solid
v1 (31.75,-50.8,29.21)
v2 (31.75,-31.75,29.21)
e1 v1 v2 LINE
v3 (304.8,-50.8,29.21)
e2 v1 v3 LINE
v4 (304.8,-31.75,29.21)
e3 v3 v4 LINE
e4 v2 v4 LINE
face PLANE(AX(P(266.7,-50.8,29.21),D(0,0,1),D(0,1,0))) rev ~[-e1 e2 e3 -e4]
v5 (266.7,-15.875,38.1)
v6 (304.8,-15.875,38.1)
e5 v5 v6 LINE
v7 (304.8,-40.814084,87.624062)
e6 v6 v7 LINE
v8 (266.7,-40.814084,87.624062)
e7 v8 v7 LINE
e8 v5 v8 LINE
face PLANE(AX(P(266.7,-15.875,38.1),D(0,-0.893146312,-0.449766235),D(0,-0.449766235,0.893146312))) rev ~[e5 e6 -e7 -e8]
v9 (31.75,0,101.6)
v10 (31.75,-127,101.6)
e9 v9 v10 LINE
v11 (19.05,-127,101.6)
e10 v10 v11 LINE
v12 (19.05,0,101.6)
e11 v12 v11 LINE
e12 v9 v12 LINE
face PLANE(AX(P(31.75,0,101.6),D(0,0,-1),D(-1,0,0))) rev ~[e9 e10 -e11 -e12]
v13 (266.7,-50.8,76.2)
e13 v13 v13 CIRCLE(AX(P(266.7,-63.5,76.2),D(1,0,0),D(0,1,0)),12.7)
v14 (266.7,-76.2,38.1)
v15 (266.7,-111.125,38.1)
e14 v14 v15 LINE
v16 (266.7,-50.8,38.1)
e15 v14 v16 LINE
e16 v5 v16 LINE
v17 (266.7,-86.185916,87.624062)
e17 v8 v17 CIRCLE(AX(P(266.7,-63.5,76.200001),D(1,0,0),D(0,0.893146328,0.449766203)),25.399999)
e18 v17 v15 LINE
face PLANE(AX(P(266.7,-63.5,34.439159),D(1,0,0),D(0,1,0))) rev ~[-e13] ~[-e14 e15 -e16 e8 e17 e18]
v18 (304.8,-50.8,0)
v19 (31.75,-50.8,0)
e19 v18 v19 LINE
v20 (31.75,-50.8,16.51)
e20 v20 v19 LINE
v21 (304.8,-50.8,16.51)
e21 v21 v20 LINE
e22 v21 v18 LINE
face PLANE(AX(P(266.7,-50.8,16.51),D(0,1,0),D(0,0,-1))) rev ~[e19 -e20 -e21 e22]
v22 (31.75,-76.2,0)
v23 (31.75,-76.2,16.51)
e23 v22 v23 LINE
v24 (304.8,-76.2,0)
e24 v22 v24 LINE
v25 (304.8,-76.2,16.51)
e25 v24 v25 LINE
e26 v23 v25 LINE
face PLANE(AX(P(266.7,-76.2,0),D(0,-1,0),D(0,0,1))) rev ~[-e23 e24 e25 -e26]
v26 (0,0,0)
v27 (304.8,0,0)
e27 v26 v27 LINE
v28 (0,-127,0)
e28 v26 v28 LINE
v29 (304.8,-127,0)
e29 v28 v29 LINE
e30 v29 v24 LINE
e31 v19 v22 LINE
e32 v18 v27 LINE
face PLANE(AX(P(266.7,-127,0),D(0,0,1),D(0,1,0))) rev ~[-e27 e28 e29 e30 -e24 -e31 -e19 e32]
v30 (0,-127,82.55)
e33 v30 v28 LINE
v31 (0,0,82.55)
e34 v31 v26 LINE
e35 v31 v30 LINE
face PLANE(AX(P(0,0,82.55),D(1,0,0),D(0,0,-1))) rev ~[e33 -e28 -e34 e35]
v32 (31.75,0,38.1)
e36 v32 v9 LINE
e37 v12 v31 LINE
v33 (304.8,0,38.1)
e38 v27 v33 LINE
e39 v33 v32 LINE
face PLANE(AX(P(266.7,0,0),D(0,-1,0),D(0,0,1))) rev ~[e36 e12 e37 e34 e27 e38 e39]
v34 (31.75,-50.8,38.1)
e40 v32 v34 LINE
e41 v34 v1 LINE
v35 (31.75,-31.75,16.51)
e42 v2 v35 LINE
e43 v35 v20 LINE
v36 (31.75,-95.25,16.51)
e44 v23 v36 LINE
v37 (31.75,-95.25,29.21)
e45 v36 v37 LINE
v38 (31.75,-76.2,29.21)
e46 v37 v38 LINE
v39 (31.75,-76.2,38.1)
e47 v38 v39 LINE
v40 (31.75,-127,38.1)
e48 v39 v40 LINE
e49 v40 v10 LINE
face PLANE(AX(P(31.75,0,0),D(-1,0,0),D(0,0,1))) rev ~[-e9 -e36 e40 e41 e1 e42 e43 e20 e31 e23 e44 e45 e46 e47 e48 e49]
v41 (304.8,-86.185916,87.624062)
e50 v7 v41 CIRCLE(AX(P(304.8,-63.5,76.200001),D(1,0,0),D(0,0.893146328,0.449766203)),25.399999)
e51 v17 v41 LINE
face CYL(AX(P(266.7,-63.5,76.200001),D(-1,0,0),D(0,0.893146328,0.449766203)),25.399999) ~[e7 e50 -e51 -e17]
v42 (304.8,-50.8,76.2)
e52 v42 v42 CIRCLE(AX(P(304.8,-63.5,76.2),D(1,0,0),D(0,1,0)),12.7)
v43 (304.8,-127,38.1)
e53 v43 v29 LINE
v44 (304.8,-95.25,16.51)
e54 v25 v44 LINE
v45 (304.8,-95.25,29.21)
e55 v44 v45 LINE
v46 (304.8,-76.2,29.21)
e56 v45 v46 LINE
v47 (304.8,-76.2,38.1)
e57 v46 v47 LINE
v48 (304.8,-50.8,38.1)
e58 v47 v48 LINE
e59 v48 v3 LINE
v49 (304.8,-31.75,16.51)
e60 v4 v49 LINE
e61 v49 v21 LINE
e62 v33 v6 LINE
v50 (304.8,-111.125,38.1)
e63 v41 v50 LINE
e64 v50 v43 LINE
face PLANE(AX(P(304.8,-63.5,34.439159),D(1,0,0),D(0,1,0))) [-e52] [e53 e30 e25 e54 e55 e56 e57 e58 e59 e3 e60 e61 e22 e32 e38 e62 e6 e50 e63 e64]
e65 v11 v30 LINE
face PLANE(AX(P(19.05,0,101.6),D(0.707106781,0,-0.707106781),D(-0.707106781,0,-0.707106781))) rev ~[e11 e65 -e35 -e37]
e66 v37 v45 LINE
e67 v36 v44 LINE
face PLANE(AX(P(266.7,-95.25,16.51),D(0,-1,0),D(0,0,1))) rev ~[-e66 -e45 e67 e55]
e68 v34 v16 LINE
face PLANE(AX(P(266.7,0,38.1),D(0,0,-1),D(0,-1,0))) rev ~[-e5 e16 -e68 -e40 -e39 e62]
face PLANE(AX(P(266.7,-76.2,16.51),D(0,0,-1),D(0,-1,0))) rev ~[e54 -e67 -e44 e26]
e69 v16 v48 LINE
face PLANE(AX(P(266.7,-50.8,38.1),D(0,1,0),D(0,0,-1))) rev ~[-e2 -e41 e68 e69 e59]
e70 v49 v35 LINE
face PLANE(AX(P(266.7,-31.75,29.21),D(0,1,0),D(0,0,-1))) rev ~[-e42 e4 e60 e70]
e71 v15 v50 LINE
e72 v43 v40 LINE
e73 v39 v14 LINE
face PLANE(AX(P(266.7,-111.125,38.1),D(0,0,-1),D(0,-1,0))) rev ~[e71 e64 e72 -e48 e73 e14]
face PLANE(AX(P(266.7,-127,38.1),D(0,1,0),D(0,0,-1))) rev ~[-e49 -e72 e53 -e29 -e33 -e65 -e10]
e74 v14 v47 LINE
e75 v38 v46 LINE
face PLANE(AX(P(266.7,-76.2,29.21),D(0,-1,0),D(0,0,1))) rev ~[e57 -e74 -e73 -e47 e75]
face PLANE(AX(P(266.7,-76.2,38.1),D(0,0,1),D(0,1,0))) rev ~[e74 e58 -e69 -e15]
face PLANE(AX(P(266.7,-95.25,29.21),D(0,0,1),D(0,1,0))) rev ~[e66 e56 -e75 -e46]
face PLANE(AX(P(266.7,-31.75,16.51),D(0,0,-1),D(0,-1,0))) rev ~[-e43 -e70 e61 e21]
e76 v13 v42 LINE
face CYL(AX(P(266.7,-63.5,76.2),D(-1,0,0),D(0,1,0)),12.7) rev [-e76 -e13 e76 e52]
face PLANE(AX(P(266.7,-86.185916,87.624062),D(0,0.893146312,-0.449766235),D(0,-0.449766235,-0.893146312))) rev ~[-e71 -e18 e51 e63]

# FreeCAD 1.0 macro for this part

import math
import FreeCAD as App
import Part
import Sketcher
from FreeCAD import Vector
Q = App.Units.Quantity

doc = App.newDocument("Part")
body = doc.addObject("PartDesign::Body", "Body")

sketch1 = body.newObject("Sketcher::SketchObject", "Sketch")
sketch1.AttachmentSupport = (doc.getObject("XZ_Plane"), [""])
sketch1.MapMode = "FlatFace"
sketch1.addGeometry([
    Part.LineSegment(Vector(0, 83, 0), Vector(0, 0, 0)),
    Part.LineSegment(Vector(0, 0, 0), Vector(32, 0, 0)),
    Part.LineSegment(Vector(32, 0, 0), Vector(32, 102, 0)),
    Part.LineSegment(Vector(32, 102, 0), Vector(19, 102, 0)),
    Part.LineSegment(Vector(19, 102, 0), Vector(0, 83, 0)),
], False)
sketch1.addConstraint([
    Sketcher.Constraint("Coincident", 0, 2, 1, 1),
    Sketcher.Constraint("Coincident", 1, 2, 2, 1),
    Sketcher.Constraint("Coincident", 2, 2, 3, 1),
    Sketcher.Constraint("Coincident", 3, 2, 4, 1),
    Sketcher.Constraint("Coincident", 4, 2, 0, 1),
    Sketcher.Constraint("Vertical", 0),
    Sketcher.Constraint("Horizontal", 1),
    Sketcher.Constraint("Vertical", 2),
    Sketcher.Constraint("Horizontal", 3),
    Sketcher.Constraint("Coincident", 0, 2, -1, 1),
    Sketcher.Constraint("DistanceY", 2, 1, 2, 2, Q("4 in")),
    Sketcher.Constraint("DistanceX", 3, 2, 3, 1, Q("0.5 in")),
    Sketcher.Constraint("Angle", 4, Q("-135 deg")),
    Sketcher.Constraint("DistanceX", 1, 1, 1, 2, Q("1.25 in")),
])
pad1 = body.newObject("PartDesign::Pad", "Pad")
pad1.Profile = sketch1
pad1.Length = Q("5 in")

sketch2 = body.newObject("Sketcher::SketchObject", "Sketch001")
sketch2.AttachmentSupport = (doc.getObject("YZ_Plane"), [""])
sketch2.MapMode = "FlatFace"
sketch2.AttachmentOffset = App.Placement(Vector(0, 0, 1.25 * 25.4), App.Rotation())
sketch2.addGeometry([
    Part.LineSegment(Vector(-127, 38, 0), Vector(-127, 0, 0)),
    Part.LineSegment(Vector(-127, 0, 0), Vector(-76, 0, 0)),
    Part.LineSegment(Vector(-76, 0, 0), Vector(-76, 17, 0)),
    Part.LineSegment(Vector(-76, 17, 0), Vector(-95, 17, 0)),
    Part.LineSegment(Vector(-95, 17, 0), Vector(-95, 29, 0)),
    Part.LineSegment(Vector(-95, 29, 0), Vector(-76, 29, 0)),
    Part.LineSegment(Vector(-76, 29, 0), Vector(-76, 38, 0)),
    Part.LineSegment(Vector(-76, 38, 0), Vector(-127, 38, 0)),
    Part.LineSegment(Vector(-51, 17, 0), Vector(-51, 0, 0)),
    Part.LineSegment(Vector(-51, 0, 0), Vector(0, 0, 0)),
    Part.LineSegment(Vector(0, 0, 0), Vector(0, 38, 0)),
    Part.LineSegment(Vector(0, 38, 0), Vector(-51, 38, 0)),
    Part.LineSegment(Vector(-51, 38, 0), Vector(-51, 29, 0)),
    Part.LineSegment(Vector(-51, 29, 0), Vector(-32, 29, 0)),
    Part.LineSegment(Vector(-32, 29, 0), Vector(-32, 17, 0)),
    Part.LineSegment(Vector(-32, 17, 0), Vector(-51, 17, 0)),
], False)
sketch2.addConstraint([
    Sketcher.Constraint("Coincident", 0, 2, 1, 1),
    Sketcher.Constraint("Coincident", 1, 2, 2, 1),
    Sketcher.Constraint("Coincident", 2, 2, 3, 1),
    Sketcher.Constraint("Coincident", 3, 2, 4, 1),
    Sketcher.Constraint("Coincident", 4, 2, 5, 1),
    Sketcher.Constraint("Coincident", 5, 2, 6, 1),
    Sketcher.Constraint("Coincident", 6, 2, 7, 1),
    Sketcher.Constraint("Coincident", 7, 2, 0, 1),
    Sketcher.Constraint("Coincident", 8, 2, 9, 1),
    Sketcher.Constraint("Coincident", 9, 2, 10, 1),
    Sketcher.Constraint("Coincident", 10, 2, 11, 1),
    Sketcher.Constraint("Coincident", 11, 2, 12, 1),
    Sketcher.Constraint("Coincident", 12, 2, 13, 1),
    Sketcher.Constraint("Coincident", 13, 2, 14, 1),
    Sketcher.Constraint("Coincident", 14, 2, 15, 1),
    Sketcher.Constraint("Coincident", 15, 2, 8, 1),
    Sketcher.Constraint("Vertical", 0),
    Sketcher.Constraint("Horizontal", 1),
    Sketcher.Constraint("Vertical", 2),
    Sketcher.Constraint("Horizontal", 3),
    Sketcher.Constraint("Vertical", 4),
    Sketcher.Constraint("Horizontal", 5),
    Sketcher.Constraint("Vertical", 6),
    Sketcher.Constraint("Horizontal", 7),
    Sketcher.Constraint("Vertical", 8),
    Sketcher.Constraint("Horizontal", 9),
    Sketcher.Constraint("Vertical", 10),
    Sketcher.Constraint("Horizontal", 11),
    Sketcher.Constraint("Vertical", 12),
    Sketcher.Constraint("Horizontal", 13),
    Sketcher.Constraint("Vertical", 14),
    Sketcher.Constraint("Horizontal", 15),
    Sketcher.Constraint("Coincident", 9, 2, -1, 1),
    Sketcher.Constraint("PointOnObject", 0, 2, -1),
    Sketcher.Constraint("Horizontal", 7, 2, 10, 2),
    Sketcher.Constraint("Horizontal", 5, 2, 12, 2),
    Sketcher.Constraint("Horizontal", 3, 2, 14, 2),
    Sketcher.Constraint("Vertical", 2, 2, 5, 2),
    Sketcher.Constraint("Vertical", 8, 2, 11, 2),
    Sketcher.Constraint("Equal", 7, 9),
    Sketcher.Constraint("Equal", 5, 13),
    Sketcher.Constraint("DistanceX", 1, 1, 1, 2, Q("2 in")),
    Sketcher.Constraint("DistanceY", 0, 2, 0, 1, Q("1.5 in")),
    Sketcher.Constraint("DistanceY", 4, 1, 4, 2, Q("0.5 in")),
    Sketcher.Constraint("DistanceX", 0, 2, -1, 1, Q("5 in")),
    Sketcher.Constraint("DistanceX", 3, 2, 3, 1, Q("0.75 in")),
    Sketcher.Constraint("DistanceY", 2, 1, 2, 2, Q("0.65 in")),
])
pad2 = body.newObject("PartDesign::Pad", "Pad001")
pad2.Profile = sketch2
pad2.Length = Q("9.25 in")

sketch3 = body.newObject("Sketcher::SketchObject", "Sketch002")
sketch3.AttachmentSupport = (doc.getObject("YZ_Plane"), [""])
sketch3.MapMode = "FlatFace"
sketch3.AttachmentOffset = App.Placement(Vector(0, 0, 10.5 * 25.4), App.Rotation())
sketch3.addGeometry([
    Part.LineSegment(Vector(-127, 38, 0), Vector(-127, 0, 0)),
    Part.LineSegment(Vector(-127, 0, 0), Vector(-76, 0, 0)),
    Part.LineSegment(Vector(-76, 0, 0), Vector(-76, 17, 0)),
    Part.LineSegment(Vector(-76, 17, 0), Vector(-95, 17, 0)),
    Part.LineSegment(Vector(-95, 17, 0), Vector(-95, 29, 0)),
    Part.LineSegment(Vector(-95, 29, 0), Vector(-76, 29, 0)),
    Part.LineSegment(Vector(-76, 29, 0), Vector(-76, 38, 0)),
    Part.LineSegment(Vector(-76, 38, 0), Vector(-51, 38, 0)),
    Part.LineSegment(Vector(-51, 38, 0), Vector(-51, 29, 0)),
    Part.LineSegment(Vector(-51, 29, 0), Vector(-32, 29, 0)),
    Part.LineSegment(Vector(-32, 29, 0), Vector(-32, 17, 0)),
    Part.LineSegment(Vector(-32, 17, 0), Vector(-51, 17, 0)),
    Part.LineSegment(Vector(-51, 17, 0), Vector(-51, 0, 0)),
    Part.LineSegment(Vector(-51, 0, 0), Vector(0, 0, 0)),
    Part.LineSegment(Vector(0, 0, 0), Vector(0, 38, 0)),
    Part.LineSegment(Vector(0, 38, 0), Vector(-16, 38, 0)),
    Part.LineSegment(Vector(-16, 38, 0), Vector(-41, 88, 0)),
    Part.ArcOfCircle(Part.Circle(Vector(-64, 76, 0), Vector(0, 0, 1), 25), math.radians(27), math.radians(153)),
    Part.LineSegment(Vector(-86, 88, 0), Vector(-111, 38, 0)),
    Part.LineSegment(Vector(-111, 38, 0), Vector(-127, 38, 0)),
    Part.Circle(Vector(-64, 76, 0), Vector(0, 0, 1), 13),
], False)
sketch3.addConstraint([
    Sketcher.Constraint("Coincident", 0, 2, 1, 1),
    Sketcher.Constraint("Coincident", 1, 2, 2, 1),
    Sketcher.Constraint("Coincident", 2, 2, 3, 1),
    Sketcher.Constraint("Coincident", 3, 2, 4, 1),
    Sketcher.Constraint("Coincident", 4, 2, 5, 1),
    Sketcher.Constraint("Coincident", 5, 2, 6, 1),
    Sketcher.Constraint("Coincident", 6, 2, 7, 1),
    Sketcher.Constraint("Coincident", 7, 2, 8, 1),
    Sketcher.Constraint("Coincident", 8, 2, 9, 1),
    Sketcher.Constraint("Coincident", 9, 2, 10, 1),
    Sketcher.Constraint("Coincident", 10, 2, 11, 1),
    Sketcher.Constraint("Coincident", 11, 2, 12, 1),
    Sketcher.Constraint("Coincident", 12, 2, 13, 1),
    Sketcher.Constraint("Coincident", 13, 2, 14, 1),
    Sketcher.Constraint("Coincident", 14, 2, 15, 1),
    Sketcher.Constraint("Coincident", 15, 2, 16, 1),
    Sketcher.Constraint("Tangent", 16, 2, 17, 1),
    Sketcher.Constraint("Tangent", 17, 2, 18, 1),
    Sketcher.Constraint("Coincident", 18, 2, 19, 1),
    Sketcher.Constraint("Coincident", 19, 2, 0, 1),
    Sketcher.Constraint("Vertical", 0),
    Sketcher.Constraint("Horizontal", 1),
    Sketcher.Constraint("Vertical", 2),
    Sketcher.Constraint("Horizontal", 3),
    Sketcher.Constraint("Vertical", 4),
    Sketcher.Constraint("Horizontal", 5),
    Sketcher.Constraint("Vertical", 6),
    Sketcher.Constraint("Horizontal", 7),
    Sketcher.Constraint("Vertical", 8),
    Sketcher.Constraint("Horizontal", 9),
    Sketcher.Constraint("Vertical", 10),
    Sketcher.Constraint("Horizontal", 11),
    Sketcher.Constraint("Vertical", 12),
    Sketcher.Constraint("Horizontal", 13),
    Sketcher.Constraint("Vertical", 14),
    Sketcher.Constraint("Horizontal", 15),
    Sketcher.Constraint("Horizontal", 19),
    Sketcher.Constraint("Coincident", 13, 2, -1, 1),
    Sketcher.Constraint("Coincident", 20, 3, 17, 3),
    Sketcher.Constraint("PointOnObject", 0, 2, -1),
    Sketcher.Constraint("Horizontal", 5, 2, 8, 2),
    Sketcher.Constraint("Horizontal", 3, 2, 10, 2),
    Sketcher.Constraint("Horizontal", 7, 2, 14, 2),
    Sketcher.Constraint("Horizontal", 16, 2, 17, 2),
    Sketcher.Constraint("Horizontal", 15, 2, 18, 2),
    Sketcher.Constraint("Vertical", 2, 2, 5, 2),
    Sketcher.Constraint("Vertical", 8, 2, 11, 2),
    Sketcher.Constraint("Equal", 5, 9),
    Sketcher.Constraint("Equal", 1, 13),
    Sketcher.Constraint("Equal", 15, 19),
    Sketcher.Constraint("Diameter", 20, Q("1 in")),
    Sketcher.Constraint("Radius", 17, Q("1 in")),
    Sketcher.Constraint("DistanceX", 1, 1, 1, 2, Q("2 in")),
    Sketcher.Constraint("DistanceX", 7, 1, 7, 2, Q("1 in")),
    Sketcher.Constraint("DistanceY", 0, 2, 0, 1, Q("1.5 in")),
    Sketcher.Constraint("DistanceY", 4, 1, 4, 2, Q("0.5 in")),
    Sketcher.Constraint("DistanceY", -1, 1, 17, 3, Q("3 in")),
    Sketcher.Constraint("DistanceX", 3, 2, 3, 1, Q("0.75 in")),
    Sketcher.Constraint("DistanceY", 2, 1, 2, 2, Q("0.65 in")),
    Sketcher.Constraint("DistanceX", 15, 2, 15, 1, Q("0.625 in")),
])
pad3 = body.newObject("PartDesign::Pad", "Pad002")
pad3.Profile = sketch3
pad3.Length = Q("1.5 in")

doc.recompute()
